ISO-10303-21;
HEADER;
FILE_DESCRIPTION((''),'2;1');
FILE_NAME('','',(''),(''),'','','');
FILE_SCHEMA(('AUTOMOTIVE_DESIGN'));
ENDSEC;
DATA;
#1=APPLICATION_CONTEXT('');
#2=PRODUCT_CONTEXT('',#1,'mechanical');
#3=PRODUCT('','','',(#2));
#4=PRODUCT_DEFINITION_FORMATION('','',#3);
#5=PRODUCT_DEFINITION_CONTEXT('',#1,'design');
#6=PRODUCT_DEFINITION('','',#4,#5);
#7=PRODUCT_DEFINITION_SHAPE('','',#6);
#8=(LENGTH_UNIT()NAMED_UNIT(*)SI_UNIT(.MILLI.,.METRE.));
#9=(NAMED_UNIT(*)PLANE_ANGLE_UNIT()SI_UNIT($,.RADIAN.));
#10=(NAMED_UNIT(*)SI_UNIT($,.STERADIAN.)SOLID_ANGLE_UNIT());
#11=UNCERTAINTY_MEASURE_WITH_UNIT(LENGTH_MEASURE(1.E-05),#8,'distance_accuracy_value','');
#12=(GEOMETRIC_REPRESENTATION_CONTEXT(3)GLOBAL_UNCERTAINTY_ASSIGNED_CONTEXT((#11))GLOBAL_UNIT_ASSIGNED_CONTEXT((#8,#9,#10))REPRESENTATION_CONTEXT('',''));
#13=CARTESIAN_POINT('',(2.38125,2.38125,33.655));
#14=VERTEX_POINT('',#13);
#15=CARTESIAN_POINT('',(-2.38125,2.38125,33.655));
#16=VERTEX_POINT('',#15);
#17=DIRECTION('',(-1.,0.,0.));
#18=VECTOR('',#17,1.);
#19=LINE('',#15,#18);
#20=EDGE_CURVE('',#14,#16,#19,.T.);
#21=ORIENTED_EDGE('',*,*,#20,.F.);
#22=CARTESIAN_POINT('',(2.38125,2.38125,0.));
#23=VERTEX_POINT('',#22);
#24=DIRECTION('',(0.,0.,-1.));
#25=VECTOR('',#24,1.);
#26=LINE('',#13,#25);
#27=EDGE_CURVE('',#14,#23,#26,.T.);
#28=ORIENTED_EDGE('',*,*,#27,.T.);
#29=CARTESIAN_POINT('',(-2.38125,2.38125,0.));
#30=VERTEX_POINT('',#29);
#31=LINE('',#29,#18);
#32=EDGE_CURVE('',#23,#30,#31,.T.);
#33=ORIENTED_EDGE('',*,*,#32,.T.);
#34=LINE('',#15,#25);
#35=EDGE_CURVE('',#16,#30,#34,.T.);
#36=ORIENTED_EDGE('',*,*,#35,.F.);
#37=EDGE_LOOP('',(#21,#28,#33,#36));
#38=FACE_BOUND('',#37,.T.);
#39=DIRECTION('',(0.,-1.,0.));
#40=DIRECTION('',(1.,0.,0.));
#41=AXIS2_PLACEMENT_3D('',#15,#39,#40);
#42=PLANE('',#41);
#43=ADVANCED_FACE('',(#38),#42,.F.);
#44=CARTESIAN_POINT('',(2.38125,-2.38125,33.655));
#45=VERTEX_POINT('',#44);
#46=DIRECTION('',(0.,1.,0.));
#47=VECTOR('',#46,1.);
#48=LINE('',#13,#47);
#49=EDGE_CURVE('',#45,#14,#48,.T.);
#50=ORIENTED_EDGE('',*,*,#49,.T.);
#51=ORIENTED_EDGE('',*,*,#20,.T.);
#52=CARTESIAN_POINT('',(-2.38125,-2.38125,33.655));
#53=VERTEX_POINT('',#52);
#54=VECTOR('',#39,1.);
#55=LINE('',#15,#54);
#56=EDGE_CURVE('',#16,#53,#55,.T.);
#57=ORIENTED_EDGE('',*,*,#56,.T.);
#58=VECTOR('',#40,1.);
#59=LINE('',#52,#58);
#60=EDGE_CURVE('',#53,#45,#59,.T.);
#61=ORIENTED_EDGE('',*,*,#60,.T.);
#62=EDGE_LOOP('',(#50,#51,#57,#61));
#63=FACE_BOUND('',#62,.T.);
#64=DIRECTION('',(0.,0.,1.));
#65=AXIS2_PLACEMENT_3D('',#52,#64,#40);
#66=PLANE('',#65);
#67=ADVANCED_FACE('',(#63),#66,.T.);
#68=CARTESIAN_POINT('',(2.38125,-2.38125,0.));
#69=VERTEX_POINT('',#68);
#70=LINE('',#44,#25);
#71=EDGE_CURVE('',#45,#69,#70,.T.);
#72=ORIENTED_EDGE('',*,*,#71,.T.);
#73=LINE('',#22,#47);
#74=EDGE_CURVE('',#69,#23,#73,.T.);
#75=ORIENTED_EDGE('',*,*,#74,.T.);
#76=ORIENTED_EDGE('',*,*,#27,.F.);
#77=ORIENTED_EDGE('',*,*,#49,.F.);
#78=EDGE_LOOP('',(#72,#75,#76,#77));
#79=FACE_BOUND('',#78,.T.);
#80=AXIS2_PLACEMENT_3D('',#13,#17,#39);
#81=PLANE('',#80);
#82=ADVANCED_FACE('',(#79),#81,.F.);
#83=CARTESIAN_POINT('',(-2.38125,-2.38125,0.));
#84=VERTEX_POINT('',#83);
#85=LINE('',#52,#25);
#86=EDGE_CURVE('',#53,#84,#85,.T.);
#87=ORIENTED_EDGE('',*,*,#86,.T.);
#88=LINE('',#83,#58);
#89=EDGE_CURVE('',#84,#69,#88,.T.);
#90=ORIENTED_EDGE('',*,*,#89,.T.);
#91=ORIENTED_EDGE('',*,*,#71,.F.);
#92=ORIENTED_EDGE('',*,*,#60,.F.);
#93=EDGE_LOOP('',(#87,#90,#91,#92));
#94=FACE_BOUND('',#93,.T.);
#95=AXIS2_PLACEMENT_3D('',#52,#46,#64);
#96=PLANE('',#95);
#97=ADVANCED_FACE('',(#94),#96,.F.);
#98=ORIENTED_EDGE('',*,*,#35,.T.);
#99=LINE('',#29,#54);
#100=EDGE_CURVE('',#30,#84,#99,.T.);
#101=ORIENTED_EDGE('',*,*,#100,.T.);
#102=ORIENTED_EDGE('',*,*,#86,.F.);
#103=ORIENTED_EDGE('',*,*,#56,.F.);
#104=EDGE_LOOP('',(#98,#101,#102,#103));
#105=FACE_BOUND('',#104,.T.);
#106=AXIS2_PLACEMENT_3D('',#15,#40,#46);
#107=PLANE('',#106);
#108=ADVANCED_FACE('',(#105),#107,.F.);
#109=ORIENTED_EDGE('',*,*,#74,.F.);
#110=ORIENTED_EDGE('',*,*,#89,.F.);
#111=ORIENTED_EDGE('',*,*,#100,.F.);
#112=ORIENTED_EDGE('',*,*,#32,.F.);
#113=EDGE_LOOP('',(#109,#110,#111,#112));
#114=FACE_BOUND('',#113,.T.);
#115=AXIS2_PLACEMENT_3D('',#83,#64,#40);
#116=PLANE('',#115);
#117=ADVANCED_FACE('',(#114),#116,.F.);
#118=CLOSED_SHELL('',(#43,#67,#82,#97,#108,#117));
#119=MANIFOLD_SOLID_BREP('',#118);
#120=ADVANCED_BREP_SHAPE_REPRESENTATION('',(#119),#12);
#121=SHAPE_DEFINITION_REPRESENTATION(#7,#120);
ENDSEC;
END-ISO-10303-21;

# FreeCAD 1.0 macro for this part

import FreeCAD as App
import Part
import Sketcher

V = App.Vector
Q = App.Units.Quantity


def add_polygon(sketch, points):
    """Adds a closed chain of lines whose ends are joined by coincident constraints."""
    first, n = sketch.GeometryCount, len(points)
    for a, b in zip(points, points[1:] + points[:1]):
        sketch.addGeometry(Part.LineSegment(App.Vector(*a, 0), App.Vector(*b, 0)), False)
    for i in range(n):
        sketch.addConstraint(Sketcher.Constraint("Coincident", first + i, 2, first + (i + 1) % n, 1))

doc = App.newDocument("Part")
body = doc.addObject("PartDesign::Body", "Body")

# Sketch on XY plane
sketch1 = body.newObject("Sketcher::SketchObject", "Sketch")
sketch1.AttachmentSupport = (doc.getObject("XY_Plane"), [""])
sketch1.MapMode = "FlatFace"
add_polygon(sketch1, [(-2.38125, 2.38125), (-2.38125, -2.38125), (2.38125, -2.38125), (2.38125, 2.38125)])  # lines 0-3
sketch1.addConstraint(Sketcher.Constraint("Vertical", 0))
sketch1.addConstraint(Sketcher.Constraint("Horizontal", 1))
sketch1.addConstraint(Sketcher.Constraint("Vertical", 2))
sketch1.addConstraint(Sketcher.Constraint("Horizontal", 3))
sketch1.addConstraint(Sketcher.Constraint("Symmetric", 0, 2, 2, 2, -1, 1))
sketch1.addConstraint(Sketcher.Constraint("Equal", 3, 0))
sketch1.addConstraint(Sketcher.Constraint("DistanceX", 1, 1, 1, 2, Q("0.1875 in")))
pad1 = body.newObject("PartDesign::Pad", "Pad")
pad1.Profile = sketch1
pad1.Length = Q("1.325 in")

doc.recompute()
